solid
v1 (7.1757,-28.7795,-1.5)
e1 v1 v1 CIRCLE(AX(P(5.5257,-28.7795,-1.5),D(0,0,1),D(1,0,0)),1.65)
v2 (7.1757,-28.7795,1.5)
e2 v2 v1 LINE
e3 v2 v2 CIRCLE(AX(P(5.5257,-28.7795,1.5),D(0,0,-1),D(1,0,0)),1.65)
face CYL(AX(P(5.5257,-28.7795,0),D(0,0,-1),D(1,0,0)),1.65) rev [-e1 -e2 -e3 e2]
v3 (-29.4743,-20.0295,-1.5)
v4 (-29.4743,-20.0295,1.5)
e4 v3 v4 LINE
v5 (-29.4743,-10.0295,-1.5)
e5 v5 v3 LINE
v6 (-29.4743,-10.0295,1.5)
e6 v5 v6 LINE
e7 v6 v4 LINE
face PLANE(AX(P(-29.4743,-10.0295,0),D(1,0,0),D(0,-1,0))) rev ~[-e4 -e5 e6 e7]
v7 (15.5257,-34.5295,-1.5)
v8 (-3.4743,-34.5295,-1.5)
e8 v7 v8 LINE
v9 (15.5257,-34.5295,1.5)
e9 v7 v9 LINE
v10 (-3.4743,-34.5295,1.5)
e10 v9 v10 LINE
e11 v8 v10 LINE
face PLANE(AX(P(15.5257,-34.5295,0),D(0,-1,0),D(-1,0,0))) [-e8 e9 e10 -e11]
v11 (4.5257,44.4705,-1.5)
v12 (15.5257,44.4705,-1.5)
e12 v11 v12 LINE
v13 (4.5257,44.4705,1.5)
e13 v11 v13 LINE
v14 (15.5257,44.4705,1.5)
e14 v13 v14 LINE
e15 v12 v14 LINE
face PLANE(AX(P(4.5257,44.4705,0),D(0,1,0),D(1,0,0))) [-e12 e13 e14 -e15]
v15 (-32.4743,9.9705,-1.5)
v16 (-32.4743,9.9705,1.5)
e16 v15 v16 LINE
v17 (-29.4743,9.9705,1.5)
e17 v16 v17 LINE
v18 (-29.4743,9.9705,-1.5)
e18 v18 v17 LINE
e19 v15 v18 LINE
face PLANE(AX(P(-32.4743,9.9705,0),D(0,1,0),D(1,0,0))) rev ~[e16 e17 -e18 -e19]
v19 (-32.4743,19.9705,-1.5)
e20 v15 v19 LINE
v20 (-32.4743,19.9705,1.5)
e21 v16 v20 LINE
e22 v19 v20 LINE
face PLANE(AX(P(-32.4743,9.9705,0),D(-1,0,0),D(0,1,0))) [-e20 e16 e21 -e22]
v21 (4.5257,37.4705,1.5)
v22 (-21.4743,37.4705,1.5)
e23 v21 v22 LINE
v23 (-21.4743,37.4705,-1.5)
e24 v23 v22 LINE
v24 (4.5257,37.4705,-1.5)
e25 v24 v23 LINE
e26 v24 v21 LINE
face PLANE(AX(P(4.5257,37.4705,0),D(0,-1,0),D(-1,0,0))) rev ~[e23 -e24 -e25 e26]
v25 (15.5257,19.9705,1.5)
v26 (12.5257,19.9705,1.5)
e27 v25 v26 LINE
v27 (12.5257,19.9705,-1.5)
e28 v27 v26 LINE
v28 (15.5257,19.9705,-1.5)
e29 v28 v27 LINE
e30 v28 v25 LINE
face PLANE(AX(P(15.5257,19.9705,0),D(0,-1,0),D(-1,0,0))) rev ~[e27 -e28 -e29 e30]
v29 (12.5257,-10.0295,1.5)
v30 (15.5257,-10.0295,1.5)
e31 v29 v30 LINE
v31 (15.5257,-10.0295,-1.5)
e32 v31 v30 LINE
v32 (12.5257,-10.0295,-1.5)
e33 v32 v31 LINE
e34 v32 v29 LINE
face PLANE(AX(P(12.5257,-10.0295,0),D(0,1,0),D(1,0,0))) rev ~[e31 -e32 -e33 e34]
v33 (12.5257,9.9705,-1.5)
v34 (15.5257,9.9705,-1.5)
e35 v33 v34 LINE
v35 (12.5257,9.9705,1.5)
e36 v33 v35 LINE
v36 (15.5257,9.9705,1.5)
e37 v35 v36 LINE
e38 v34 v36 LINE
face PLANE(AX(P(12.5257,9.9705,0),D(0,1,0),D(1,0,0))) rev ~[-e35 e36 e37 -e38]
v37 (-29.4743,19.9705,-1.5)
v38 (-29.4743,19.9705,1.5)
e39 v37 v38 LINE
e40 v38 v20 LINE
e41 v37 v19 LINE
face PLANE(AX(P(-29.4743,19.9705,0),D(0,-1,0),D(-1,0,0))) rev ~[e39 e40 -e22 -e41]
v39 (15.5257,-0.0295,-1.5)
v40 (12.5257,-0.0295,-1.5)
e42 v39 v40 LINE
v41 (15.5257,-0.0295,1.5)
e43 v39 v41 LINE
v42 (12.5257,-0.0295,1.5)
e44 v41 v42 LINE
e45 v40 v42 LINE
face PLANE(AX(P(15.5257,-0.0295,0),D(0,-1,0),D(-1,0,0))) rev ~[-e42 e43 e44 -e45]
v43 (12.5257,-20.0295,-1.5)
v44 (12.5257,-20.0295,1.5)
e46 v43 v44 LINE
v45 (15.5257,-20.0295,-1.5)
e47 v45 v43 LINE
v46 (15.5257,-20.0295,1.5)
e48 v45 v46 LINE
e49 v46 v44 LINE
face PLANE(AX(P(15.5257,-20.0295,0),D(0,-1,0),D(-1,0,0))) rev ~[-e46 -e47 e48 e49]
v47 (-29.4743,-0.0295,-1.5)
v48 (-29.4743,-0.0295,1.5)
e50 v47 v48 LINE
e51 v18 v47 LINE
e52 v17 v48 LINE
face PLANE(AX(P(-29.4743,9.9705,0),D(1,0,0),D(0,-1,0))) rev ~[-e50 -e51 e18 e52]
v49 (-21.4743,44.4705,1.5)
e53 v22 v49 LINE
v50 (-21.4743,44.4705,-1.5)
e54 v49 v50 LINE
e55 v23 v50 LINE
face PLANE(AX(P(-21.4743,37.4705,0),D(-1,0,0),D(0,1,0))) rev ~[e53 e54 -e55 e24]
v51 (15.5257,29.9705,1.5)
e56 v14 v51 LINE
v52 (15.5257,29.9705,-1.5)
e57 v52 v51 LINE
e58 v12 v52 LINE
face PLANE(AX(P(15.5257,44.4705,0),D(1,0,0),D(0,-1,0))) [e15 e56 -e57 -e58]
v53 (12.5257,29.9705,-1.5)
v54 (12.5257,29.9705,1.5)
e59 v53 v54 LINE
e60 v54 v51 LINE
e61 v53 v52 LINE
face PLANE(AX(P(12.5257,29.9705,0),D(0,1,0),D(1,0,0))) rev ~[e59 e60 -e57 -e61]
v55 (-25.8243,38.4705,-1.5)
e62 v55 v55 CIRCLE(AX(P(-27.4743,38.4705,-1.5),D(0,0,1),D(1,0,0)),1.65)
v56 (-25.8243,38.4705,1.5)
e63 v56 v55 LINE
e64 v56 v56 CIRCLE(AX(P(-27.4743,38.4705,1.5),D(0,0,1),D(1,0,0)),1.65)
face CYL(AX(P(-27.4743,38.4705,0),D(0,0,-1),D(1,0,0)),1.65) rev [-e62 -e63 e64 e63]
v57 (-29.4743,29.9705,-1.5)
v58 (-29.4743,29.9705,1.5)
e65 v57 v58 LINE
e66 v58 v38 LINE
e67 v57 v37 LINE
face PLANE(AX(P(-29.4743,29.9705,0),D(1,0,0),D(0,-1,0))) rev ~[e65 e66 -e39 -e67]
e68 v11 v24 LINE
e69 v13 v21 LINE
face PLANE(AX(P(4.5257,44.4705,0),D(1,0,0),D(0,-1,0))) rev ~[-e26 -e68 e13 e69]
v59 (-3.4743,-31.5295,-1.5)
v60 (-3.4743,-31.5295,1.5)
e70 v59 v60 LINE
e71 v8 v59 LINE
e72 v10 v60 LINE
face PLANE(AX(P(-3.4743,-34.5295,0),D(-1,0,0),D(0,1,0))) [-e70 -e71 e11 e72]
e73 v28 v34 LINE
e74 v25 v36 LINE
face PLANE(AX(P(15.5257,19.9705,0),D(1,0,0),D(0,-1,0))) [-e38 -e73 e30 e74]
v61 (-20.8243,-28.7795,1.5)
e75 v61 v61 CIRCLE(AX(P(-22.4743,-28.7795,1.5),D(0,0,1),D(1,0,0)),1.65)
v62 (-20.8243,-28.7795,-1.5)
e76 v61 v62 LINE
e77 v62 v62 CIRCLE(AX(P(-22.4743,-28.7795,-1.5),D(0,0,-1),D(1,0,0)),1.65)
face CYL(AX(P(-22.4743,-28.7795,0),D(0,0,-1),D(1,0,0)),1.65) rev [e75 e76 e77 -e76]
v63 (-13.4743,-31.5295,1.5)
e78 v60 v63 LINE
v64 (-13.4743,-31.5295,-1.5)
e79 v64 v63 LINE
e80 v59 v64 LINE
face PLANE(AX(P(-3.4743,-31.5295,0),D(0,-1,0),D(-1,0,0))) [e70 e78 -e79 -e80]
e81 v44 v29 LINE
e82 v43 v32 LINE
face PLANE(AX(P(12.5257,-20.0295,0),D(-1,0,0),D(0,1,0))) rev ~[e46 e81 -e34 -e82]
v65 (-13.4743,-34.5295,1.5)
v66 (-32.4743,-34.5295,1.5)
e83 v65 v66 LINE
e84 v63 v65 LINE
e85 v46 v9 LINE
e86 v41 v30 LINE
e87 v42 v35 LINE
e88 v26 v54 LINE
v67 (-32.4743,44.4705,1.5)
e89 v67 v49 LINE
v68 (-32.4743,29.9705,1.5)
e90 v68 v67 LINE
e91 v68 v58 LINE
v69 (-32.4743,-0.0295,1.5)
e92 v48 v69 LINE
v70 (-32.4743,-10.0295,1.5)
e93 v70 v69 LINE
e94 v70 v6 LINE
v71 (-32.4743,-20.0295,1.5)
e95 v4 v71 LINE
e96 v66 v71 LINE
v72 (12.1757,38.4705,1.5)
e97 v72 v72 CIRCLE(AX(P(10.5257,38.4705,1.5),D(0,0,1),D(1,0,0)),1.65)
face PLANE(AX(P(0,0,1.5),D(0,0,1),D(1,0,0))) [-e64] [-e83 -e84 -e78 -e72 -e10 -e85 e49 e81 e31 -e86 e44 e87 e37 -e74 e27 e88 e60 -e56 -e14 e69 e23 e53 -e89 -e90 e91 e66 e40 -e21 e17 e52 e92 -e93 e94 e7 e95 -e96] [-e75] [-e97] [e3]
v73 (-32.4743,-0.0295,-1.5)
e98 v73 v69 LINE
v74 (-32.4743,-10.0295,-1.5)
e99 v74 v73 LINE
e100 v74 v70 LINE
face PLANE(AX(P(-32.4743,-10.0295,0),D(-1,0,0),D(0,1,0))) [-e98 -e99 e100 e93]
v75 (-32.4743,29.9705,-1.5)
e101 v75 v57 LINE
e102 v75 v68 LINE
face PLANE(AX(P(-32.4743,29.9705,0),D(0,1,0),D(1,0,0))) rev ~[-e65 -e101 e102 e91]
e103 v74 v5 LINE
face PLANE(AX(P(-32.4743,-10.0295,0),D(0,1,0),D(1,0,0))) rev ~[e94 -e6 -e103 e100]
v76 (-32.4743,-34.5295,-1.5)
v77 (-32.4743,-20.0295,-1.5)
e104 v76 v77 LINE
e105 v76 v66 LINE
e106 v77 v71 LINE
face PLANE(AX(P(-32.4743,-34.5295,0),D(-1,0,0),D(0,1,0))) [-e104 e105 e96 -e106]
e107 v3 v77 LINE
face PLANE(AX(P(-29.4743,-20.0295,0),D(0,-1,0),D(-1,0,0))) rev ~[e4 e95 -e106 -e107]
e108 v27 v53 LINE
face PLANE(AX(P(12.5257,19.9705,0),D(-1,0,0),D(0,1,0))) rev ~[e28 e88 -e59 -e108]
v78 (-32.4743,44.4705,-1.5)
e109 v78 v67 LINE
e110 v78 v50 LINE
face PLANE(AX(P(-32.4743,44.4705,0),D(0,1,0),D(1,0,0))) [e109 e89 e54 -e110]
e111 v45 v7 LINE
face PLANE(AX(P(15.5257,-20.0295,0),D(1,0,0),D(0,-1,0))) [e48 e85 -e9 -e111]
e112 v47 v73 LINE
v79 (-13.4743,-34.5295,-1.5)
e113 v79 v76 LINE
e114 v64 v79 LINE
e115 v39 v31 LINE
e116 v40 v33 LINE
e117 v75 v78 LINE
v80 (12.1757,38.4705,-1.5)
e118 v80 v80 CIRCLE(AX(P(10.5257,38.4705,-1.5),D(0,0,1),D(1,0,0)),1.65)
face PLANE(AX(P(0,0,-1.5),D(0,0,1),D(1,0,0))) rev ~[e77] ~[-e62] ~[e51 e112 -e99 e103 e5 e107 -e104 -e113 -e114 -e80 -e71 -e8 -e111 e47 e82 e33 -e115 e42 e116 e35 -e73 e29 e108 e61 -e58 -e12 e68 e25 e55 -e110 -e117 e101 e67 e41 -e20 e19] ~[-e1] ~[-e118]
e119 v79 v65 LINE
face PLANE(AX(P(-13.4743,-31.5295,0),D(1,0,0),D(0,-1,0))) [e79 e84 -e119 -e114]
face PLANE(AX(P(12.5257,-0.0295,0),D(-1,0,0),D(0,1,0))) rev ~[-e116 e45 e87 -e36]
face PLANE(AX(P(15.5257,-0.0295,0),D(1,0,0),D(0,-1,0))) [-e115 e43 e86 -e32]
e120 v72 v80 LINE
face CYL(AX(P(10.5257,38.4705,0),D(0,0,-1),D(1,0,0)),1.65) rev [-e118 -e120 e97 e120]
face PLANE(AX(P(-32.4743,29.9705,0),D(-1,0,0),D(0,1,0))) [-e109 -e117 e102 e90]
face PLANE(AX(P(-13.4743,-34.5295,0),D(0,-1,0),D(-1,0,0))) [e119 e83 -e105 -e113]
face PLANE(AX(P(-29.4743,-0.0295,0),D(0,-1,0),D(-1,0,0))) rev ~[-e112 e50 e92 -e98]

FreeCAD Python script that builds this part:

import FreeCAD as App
import Part
import Sketcher

V = App.Vector
Q = App.Units.Quantity


def add_polygon(sketch, points):
    """Adds a closed chain of lines whose ends are joined by coincident constraints."""
    first, n = sketch.GeometryCount, len(points)
    for a, b in zip(points, points[1:] + points[:1]):
        sketch.addGeometry(Part.LineSegment(App.Vector(*a, 0), App.Vector(*b, 0)), False)
    for i in range(n):
        sketch.addConstraint(Sketcher.Constraint("Coincident", first + i, 2, first + (i + 1) % n, 1))

doc = App.newDocument("Part")
body = doc.addObject("PartDesign::Body", "Body")

sketch1 = body.newObject("Sketcher::SketchObject", "Sketch")
sketch1.AttachmentSupport = (doc.getObject("XY_Plane"), [""])
sketch1.MapMode = "FlatFace"
add_polygon(sketch1, [(-21.5, 44.5), (-32.5, 44.5), (-32.5, 30), (-29.5, 30), (-29.5, 20), (-32.5, 20), (-32.5, 10), (-29.5, 10), (-29.5, 0), (-32.5, 0), (-32.5, -10), (-29.5, -10), (-29.5, -20), (-32.5, -20), (-32.5, -34.5), (-13.5, -34.5), (-13.5, -31.5), (-3.5, -31.5), (-3.5, -34.5), (15.5, -34.5), (15.5, -20), (12.5, -20), (12.5, -10), (15.5, -10), (15.5, 0), (12.5, 0), (12.5, 10), (15.5, 10), (15.5, 20), (12.5, 20), (12.5, 30), (15.5, 30), (15.5, 44.5), (4.5, 44.5), (4.5, 37.5), (-21.5, 37.5)])
sketch1.addGeometry(Part.Circle(V(-22.5, -28.8, 0), V(0, 0, 1), 1.6), False)
sketch1.addGeometry(Part.Circle(V(5.5, -28.8, 0), V(0, 0, 1), 1.6), False)
sketch1.addGeometry(Part.Circle(V(10.5, 38.5, 0), V(0, 0, 1), 1.6), False)
sketch1.addGeometry(Part.Circle(V(-27.5, 38.5, 0), V(0, 0, 1), 1.6), False)
sketch1.addConstraint(Sketcher.Constraint("Horizontal", 0))
sketch1.addConstraint(Sketcher.Constraint("Vertical", 1))
sketch1.addConstraint(Sketcher.Constraint("Horizontal", 2))
sketch1.addConstraint(Sketcher.Constraint("Vertical", 3))
sketch1.addConstraint(Sketcher.Constraint("Horizontal", 4))
sketch1.addConstraint(Sketcher.Constraint("Vertical", 5))
sketch1.addConstraint(Sketcher.Constraint("Horizontal", 6))
sketch1.addConstraint(Sketcher.Constraint("Vertical", 7))
sketch1.addConstraint(Sketcher.Constraint("Horizontal", 8))
sketch1.addConstraint(Sketcher.Constraint("Vertical", 9))
sketch1.addConstraint(Sketcher.Constraint("Horizontal", 10))
sketch1.addConstraint(Sketcher.Constraint("Vertical", 11))
sketch1.addConstraint(Sketcher.Constraint("Horizontal", 12))
sketch1.addConstraint(Sketcher.Constraint("Vertical", 13))
sketch1.addConstraint(Sketcher.Constraint("Horizontal", 14))
sketch1.addConstraint(Sketcher.Constraint("Vertical", 15))
sketch1.addConstraint(Sketcher.Constraint("Horizontal", 16))
sketch1.addConstraint(Sketcher.Constraint("Vertical", 17))
sketch1.addConstraint(Sketcher.Constraint("Horizontal", 18))
sketch1.addConstraint(Sketcher.Constraint("Vertical", 19))
sketch1.addConstraint(Sketcher.Constraint("Horizontal", 20))
sketch1.addConstraint(Sketcher.Constraint("Vertical", 21))
sketch1.addConstraint(Sketcher.Constraint("Horizontal", 22))
sketch1.addConstraint(Sketcher.Constraint("Vertical", 23))
sketch1.addConstraint(Sketcher.Constraint("Horizontal", 24))
sketch1.addConstraint(Sketcher.Constraint("Vertical", 25))
sketch1.addConstraint(Sketcher.Constraint("Horizontal", 26))
sketch1.addConstraint(Sketcher.Constraint("Vertical", 27))
sketch1.addConstraint(Sketcher.Constraint("Horizontal", 28))
sketch1.addConstraint(Sketcher.Constraint("Vertical", 29))
sketch1.addConstraint(Sketcher.Constraint("Horizontal", 30))
sketch1.addConstraint(Sketcher.Constraint("Vertical", 31))
sketch1.addConstraint(Sketcher.Constraint("Horizontal", 32))
sketch1.addConstraint(Sketcher.Constraint("Vertical", 33))
sketch1.addConstraint(Sketcher.Constraint("Horizontal", 34))
sketch1.addConstraint(Sketcher.Constraint("Vertical", 35))
sketch1.addConstraint(Sketcher.Constraint("Equal", 36, 37))
sketch1.addConstraint(Sketcher.Constraint("Equal", 37, 38))
sketch1.addConstraint(Sketcher.Constraint("Equal", 38, 39))
sketch1.addConstraint(Sketcher.Constraint("Horizontal", 36, 3, 37, 3))
sketch1.addConstraint(Sketcher.Constraint("Horizontal", 38, 3, 39, 3))
sketch1.addConstraint(Sketcher.Constraint("Horizontal", 14, 2, 17, 2))
sketch1.addConstraint(Sketcher.Constraint("Horizontal", 12, 2, 19, 2))
sketch1.addConstraint(Sketcher.Constraint("Horizontal", 10, 2, 21, 2))
sketch1.addConstraint(Sketcher.Constraint("Horizontal", 8, 2, 23, 2))
sketch1.addConstraint(Sketcher.Constraint("Horizontal", 6, 2, 25, 2))
sketch1.addConstraint(Sketcher.Constraint("Horizontal", 4, 2, 27, 2))
sketch1.addConstraint(Sketcher.Constraint("Horizontal", 2, 2, 29, 2))
sketch1.addConstraint(Sketcher.Constraint("Horizontal", 0, 2, 31, 2))
sketch1.addConstraint(Sketcher.Constraint("Vertical", 1, 2, 4, 2))
sketch1.addConstraint(Sketcher.Constraint("Vertical", 3, 2, 6, 2))
sketch1.addConstraint(Sketcher.Constraint("Vertical", 5, 2, 8, 2))
sketch1.addConstraint(Sketcher.Constraint("Vertical", 7, 2, 10, 2))
sketch1.addConstraint(Sketcher.Constraint("Vertical", 9, 2, 12, 2))
sketch1.addConstraint(Sketcher.Constraint("Vertical", 19, 2, 22, 2))
sketch1.addConstraint(Sketcher.Constraint("Vertical", 21, 2, 24, 2))
sketch1.addConstraint(Sketcher.Constraint("Vertical", 23, 2, 26, 2))
sketch1.addConstraint(Sketcher.Constraint("Vertical", 25, 2, 28, 2))
sketch1.addConstraint(Sketcher.Constraint("Vertical", 27, 2, 30, 2))
sketch1.addConstraint(Sketcher.Constraint("Equal", 14, 18))
sketch1.addConstraint(Sketcher.Constraint("Equal", 12, 20))
sketch1.addConstraint(Sketcher.Constraint("Equal", 0, 32))
sketch1.addConstraint(Sketcher.Constraint("Equal", 16, 3))
sketch1.addConstraint(Sketcher.Constraint("Equal", 3, 5))
sketch1.addConstraint(Sketcher.Constraint("Equal", 5, 7))
sketch1.addConstraint(Sketcher.Constraint("Equal", 7, 9))
sketch1.addConstraint(Sketcher.Constraint("Equal", 9, 11))
sketch1.addConstraint(Sketcher.Constraint("Equal", 1, 13))
sketch1.addConstraint(Sketcher.Constraint("Equal", 30, 15))
sketch1.addConstraint(Sketcher.Constraint("Diameter", 36, Q("3.3 mm")))
sketch1.addConstraint(Sketcher.Constraint("DistanceX", 2, 1, 2, 2, Q("3 mm")))
sketch1.addConstraint(Sketcher.Constraint("DistanceX", 14, 1, 14, 2, Q("19 mm")))
sketch1.addConstraint(Sketcher.Constraint("DistanceX", 16, 1, 16, 2, Q("10 mm")))
sketch1.addConstraint(Sketcher.Constraint("DistanceX", 34, 2, 34, 1, Q("26 mm")))
sketch1.addConstraint(Sketcher.Constraint("DistanceY", 33, 2, 33, 1, Q("7 mm")))
sketch1.addConstraint(Sketcher.Constraint("DistanceX", 36, 3, 37, 3, Q("28 mm")))
sketch1.addConstraint(Sketcher.Constraint("DistanceX", 37, 3, 38, 3, Q("5 mm")))
sketch1.addConstraint(Sketcher.Constraint("DistanceX", 39, 3, 38, 3, Q("38 mm")))
sketch1.addConstraint(Sketcher.Constraint("DistanceX", 0, 2, 39, 3, Q("5 mm")))
sketch1.addConstraint(Sketcher.Constraint("DistanceY", 33, 2, 38, 3, Q("1 mm")))
sketch1.addConstraint(Sketcher.Constraint("DistanceY", 1, 2, 1, 1, Q("14.5 mm")))
sketch1.addConstraint(Sketcher.Constraint("DistanceY", 37, 3, 38, 3, Q("67.25 mm")))
sketch1.addConstraint(Sketcher.Constraint("DistanceX", 36, 3, -1, 1, Q("22.4743 mm")))
sketch1.addConstraint(Sketcher.Constraint("DistanceY", 36, 3, -1, 1, Q("28.7795 mm")))
pad1 = body.newObject("PartDesign::Pad", "Pad")
pad1.Profile = sketch1
pad1.Length = 3
pad1.Midplane = True

doc.recompute()
